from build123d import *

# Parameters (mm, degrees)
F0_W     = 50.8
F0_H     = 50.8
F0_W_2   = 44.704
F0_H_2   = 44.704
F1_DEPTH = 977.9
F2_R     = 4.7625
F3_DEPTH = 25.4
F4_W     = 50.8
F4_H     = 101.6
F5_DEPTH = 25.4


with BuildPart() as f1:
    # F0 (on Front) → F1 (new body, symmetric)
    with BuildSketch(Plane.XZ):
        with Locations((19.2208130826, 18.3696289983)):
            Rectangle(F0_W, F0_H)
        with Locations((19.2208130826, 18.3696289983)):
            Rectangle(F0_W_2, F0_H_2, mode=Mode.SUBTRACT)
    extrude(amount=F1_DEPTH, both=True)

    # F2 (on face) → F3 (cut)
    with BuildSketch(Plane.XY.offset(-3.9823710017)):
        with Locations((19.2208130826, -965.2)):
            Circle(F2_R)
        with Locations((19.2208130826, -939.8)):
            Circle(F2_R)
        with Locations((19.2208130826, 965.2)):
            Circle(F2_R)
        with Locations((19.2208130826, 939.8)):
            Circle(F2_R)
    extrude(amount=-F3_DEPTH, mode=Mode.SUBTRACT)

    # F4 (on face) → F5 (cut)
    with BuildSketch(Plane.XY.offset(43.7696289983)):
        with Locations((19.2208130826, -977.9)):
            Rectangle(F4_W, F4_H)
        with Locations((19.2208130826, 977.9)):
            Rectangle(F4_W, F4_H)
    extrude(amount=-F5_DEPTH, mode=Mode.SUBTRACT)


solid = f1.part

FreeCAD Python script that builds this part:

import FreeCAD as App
import Part
import Sketcher
from FreeCAD import Vector
Q = App.Units.Quantity


def add_polygon(sketch, points):
    """Adds a closed chain of lines whose ends are joined by coincident constraints."""
    first, n = sketch.GeometryCount, len(points)
    for a, b in zip(points, points[1:] + points[:1]):
        sketch.addGeometry(Part.LineSegment(App.Vector(*a, 0), App.Vector(*b, 0)), False)
    for i in range(n):
        sketch.addConstraint(Sketcher.Constraint("Coincident", first + i, 2, first + (i + 1) % n, 1))

doc = App.newDocument("Part")
params = doc.addObject("Spreadsheet::Sheet", "Params")
for row, (alias, value) in enumerate([
    ("sketch1_width", "2 in"),
    ("sketch1_width2", "1.76 in"),
    ("pad1_length", "77 in"),
    ("sketch2_diameter", "0.375 in"),
    ("pocket1_length", "1 in"),
    ("sketch3_width", "2 in"),
    ("sketch3_height", "4 in"),
    ("pocket2_length", "1 in"),
], start=1):
    params.set(f"A{row}", alias)
    params.set(f"B{row}", "=" + value)
    params.setAlias(f"B{row}", alias)

body = doc.addObject("PartDesign::Body", "Body")

sketch1 = body.newObject("Sketcher::SketchObject", "Sketch")
sketch1.AttachmentSupport = (doc.getObject("XZ_Plane"), [""])
sketch1.MapMode = "FlatFace"
add_polygon(sketch1, [(-6, 44), (-6, -7), (45, -7), (45, 44)])
add_polygon(sketch1, [(42, -4), (-3, -4), (-3, 41), (42, 41)])
sketch1.addConstraint([
    Sketcher.Constraint("Vertical", 0),
    Sketcher.Constraint("Horizontal", 1),
    Sketcher.Constraint("Vertical", 2),
    Sketcher.Constraint("Horizontal", 3),
    Sketcher.Constraint("Horizontal", 4),
    Sketcher.Constraint("Vertical", 5),
    Sketcher.Constraint("Horizontal", 6),
    Sketcher.Constraint("Vertical", 7),
    Sketcher.Constraint("Equal", 3, 0),
    Sketcher.Constraint("Equal", 6, 5),
    Sketcher.Constraint("DistanceX", 1, 1, 1, 2, Q("2 in")),
    Sketcher.Constraint("DistanceX", 4, 2, 4, 1, Q("1.76 in")),
    Sketcher.Constraint("DistanceX", 0, 2, 4, 2, Q("0.12 in")),
    Sketcher.Constraint("DistanceY", 0, 2, 4, 2, Q("0.12 in")),
    Sketcher.Constraint("DistanceY", 0, 2, -1, 1, Q("7.030371 mm")),
    Sketcher.Constraint("DistanceX", 0, 2, -1, 1, Q("6.179187 mm")),
])
sketch1.setExpression("Constraints[18]", "Params.sketch1_width")
sketch1.setExpression("Constraints[19]", "Params.sketch1_width2")
pad1 = body.newObject("PartDesign::Pad", "Pad")
pad1.Profile = sketch1
pad1.setExpression("Length", "Params.pad1_length")
pad1.Midplane = True

sketch2 = body.newObject("Sketcher::SketchObject", "Sketch001")
sketch2.AttachmentSupport = (doc.getObject("XY_Plane"), [""])
sketch2.MapMode = "FlatFace"
sketch2.AttachmentOffset = App.Placement(Vector(0, 0, -3.982371), App.Rotation())
sketch2.addGeometry([
    Part.Circle(Vector(19.2, -965.2, 0), Vector(0, 0, 1), 4.8),
    Part.Circle(Vector(19.2, -939.8, 0), Vector(0, 0, 1), 4.8),
    Part.Circle(Vector(19.2, 965.2, 0), Vector(0, 0, 1), 4.8),
    Part.Circle(Vector(19.2, 939.8, 0), Vector(0, 0, 1), 4.8),
], False)
sketch2.addConstraint([
    Sketcher.Constraint("Equal", 0, 1),
    Sketcher.Constraint("Equal", 1, 2),
    Sketcher.Constraint("Equal", 2, 3),
    Sketcher.Constraint("Symmetric", 0, 3, 2, 3, -1),
    Sketcher.Constraint("Symmetric", 1, 3, 3, 3, -1),
    Sketcher.Constraint("Vertical", 0, 3, 1, 3),
    Sketcher.Constraint("Diameter", 0, Q("0.375 in")),
    Sketcher.Constraint("DistanceY", 0, 3, -1, 1, Q("38 in")),
    Sketcher.Constraint("DistanceY", 1, 3, -1, 1, Q("37 in")),
    Sketcher.Constraint("DistanceX", -1, 1, 0, 3, Q("19.220813 mm")),
])
sketch2.setExpression("Constraints[6]", "Params.sketch2_diameter")
pocket1 = body.newObject("PartDesign::Pocket", "Pocket")
pocket1.Profile = sketch2
pocket1.setExpression("Length", "Params.pocket1_length")

sketch3 = body.newObject("Sketcher::SketchObject", "Sketch002")
sketch3.AttachmentSupport = (doc.getObject("XY_Plane"), [""])
sketch3.MapMode = "FlatFace"
sketch3.AttachmentOffset = App.Placement(Vector(0, 0, 43.769629), App.Rotation())
add_polygon(sketch3, [(-6, -927), (-6, -1029), (45, -1029), (45, -927)])
add_polygon(sketch3, [(-6, 1029), (-6, 927), (45, 927), (45, 1029)])
sketch3.addConstraint([
    Sketcher.Constraint("Vertical", 0),
    Sketcher.Constraint("Horizontal", 1),
    Sketcher.Constraint("Vertical", 2),
    Sketcher.Constraint("Horizontal", 3),
    Sketcher.Constraint("Vertical", 4),
    Sketcher.Constraint("Horizontal", 5),
    Sketcher.Constraint("Vertical", 6),
    Sketcher.Constraint("Horizontal", 7),
    Sketcher.Constraint("Symmetric", 3, 2, 4, 2, -1),
    Sketcher.Constraint("Symmetric", 1, 2, 6, 2, -1),
    Sketcher.Constraint("DistanceX", 1, 1, 1, 2, Q("2 in")),
    Sketcher.Constraint("DistanceY", 0, 2, 0, 1, Q("4 in")),
    Sketcher.Constraint("DistanceY", 3, 2, 4, 2, Q("73 in")),
    Sketcher.Constraint("DistanceX", 0, 2, -1, 1, Q("6.179187 mm")),
])
sketch3.setExpression("Constraints[18]", "Params.sketch3_width")
sketch3.setExpression("Constraints[19]", "Params.sketch3_height")
pocket2 = body.newObject("PartDesign::Pocket", "Pocket001")
pocket2.Profile = sketch3
pocket2.setExpression("Length", "Params.pocket2_length")

doc.recompute()
